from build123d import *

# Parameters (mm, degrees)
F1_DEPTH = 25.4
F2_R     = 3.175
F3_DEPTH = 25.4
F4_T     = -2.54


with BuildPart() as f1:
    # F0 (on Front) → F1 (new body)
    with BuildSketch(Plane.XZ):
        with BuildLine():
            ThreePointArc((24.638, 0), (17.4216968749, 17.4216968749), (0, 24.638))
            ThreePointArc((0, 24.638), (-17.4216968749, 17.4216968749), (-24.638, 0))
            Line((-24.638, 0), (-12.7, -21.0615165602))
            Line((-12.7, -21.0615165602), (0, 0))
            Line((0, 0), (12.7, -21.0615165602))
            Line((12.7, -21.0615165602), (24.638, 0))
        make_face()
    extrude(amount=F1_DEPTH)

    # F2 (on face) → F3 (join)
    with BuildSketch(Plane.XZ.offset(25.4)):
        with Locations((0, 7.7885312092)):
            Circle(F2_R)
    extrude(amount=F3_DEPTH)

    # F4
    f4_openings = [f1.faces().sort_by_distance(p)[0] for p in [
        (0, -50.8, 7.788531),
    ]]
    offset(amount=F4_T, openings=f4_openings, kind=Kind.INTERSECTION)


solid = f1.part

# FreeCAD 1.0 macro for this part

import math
import FreeCAD as App
import Part
import Sketcher
Q = App.Units.Quantity


def faces_at(feature, points):
    """Names of the faces that lie closest to the given points."""
    faces = feature.Shape.Faces
    near = lambda p: min(range(len(faces)), key=lambda i: faces[i].distToShape(Part.Vertex(*p))[0])
    return sorted({f"Face{near(p) + 1}" for p in points})

doc = App.newDocument("Part")
body = doc.addObject("PartDesign::Body", "Body")

# Sketch on XZ plane
sketch1 = body.newObject("Sketcher::SketchObject", "Sketch")
sketch1.AttachmentSupport = (doc.getObject("XZ_Plane"), [""])
sketch1.MapMode = "FlatFace"
sketch1.addGeometry([
    Part.ArcOfCircle(Part.Circle(App.Vector(0, 0, 0), App.Vector(0, 0, 1), 25), math.radians(0), math.radians(90)),  # 0
    Part.ArcOfCircle(Part.Circle(App.Vector(0, 0, 0), App.Vector(0, 0, 1), 25), math.radians(90), math.radians(180)),  # 1
    Part.LineSegment(App.Vector(-25, 0, 0), App.Vector(-13, -21, 0)),  # 2
    Part.LineSegment(App.Vector(-13, -21, 0), App.Vector(0, 0, 0)),  # 3
    Part.LineSegment(App.Vector(0, 0, 0), App.Vector(13, -21, 0)),  # 4
    Part.LineSegment(App.Vector(13, -21, 0), App.Vector(25, 0, 0)),  # 5
], False)
sketch1.addConstraint([
    Sketcher.Constraint("Tangent", 0, 2, 1, 1),
    Sketcher.Constraint("Coincident", 1, 2, 2, 1),
    Sketcher.Constraint("Coincident", 2, 2, 3, 1),
    Sketcher.Constraint("Coincident", 3, 2, 4, 1),
    Sketcher.Constraint("Coincident", 4, 2, 5, 1),
    Sketcher.Constraint("Coincident", 5, 2, 0, 1),
    Sketcher.Constraint("Coincident", 0, 3, -1, 1),
    Sketcher.Constraint("Coincident", 3, 2, -1, 1),
    Sketcher.Constraint("Equal", 0, 1),
    Sketcher.Constraint("Symmetric", 2, 2, 4, 2, -2),
    Sketcher.Constraint("PointOnObject", 0, 2, -2),
    Sketcher.Constraint("PointOnObject", 1, 2, -1),
    Sketcher.Constraint("PointOnObject", 5, 2, -1),
    Sketcher.Constraint("Radius", 0, Q("0.97 in")),
    Sketcher.Constraint("DistanceX", 2, 2, 4, 2, Q("1 in")),
    Sketcher.Constraint("Distance", 2, Q("24.209571 mm")),
])
pad1 = body.newObject("PartDesign::Pad", "Pad")
pad1.Profile = sketch1
pad1.Length = Q("1 in")

# Sketch on XZ plane
sketch2 = body.newObject("Sketcher::SketchObject", "Sketch001")
sketch2.AttachmentSupport = (doc.getObject("XZ_Plane"), [""])
sketch2.MapMode = "FlatFace"
sketch2.AttachmentOffset = App.Placement(App.Vector(0, 0, 1 * 25.4), App.Rotation())
sketch2.addGeometry(Part.Circle(App.Vector(0, 7.8, 0), App.Vector(0, 0, 1), 3.2), False)
sketch2.addConstraint([
    Sketcher.Constraint("PointOnObject", 0, 3, -2),
    Sketcher.Constraint("Diameter", 0, Q("0.25 in")),
    Sketcher.Constraint("DistanceY", -1, 1, 0, 3, Q("7.788531 mm")),
])
pad2 = body.newObject("PartDesign::Pad", "Pad001")
pad2.Profile = sketch2
pad2.Length = Q("1 in")
doc.recompute()

thickness = body.newObject("PartDesign::Thickness", "Thickness")
thickness.Base = (pad2, faces_at(pad2, [(0, -50.8, 7.789)]))
thickness.Value = Q("0.1 in")
thickness.Reversed = True
thickness.Join = "Intersection"

doc.recompute()
